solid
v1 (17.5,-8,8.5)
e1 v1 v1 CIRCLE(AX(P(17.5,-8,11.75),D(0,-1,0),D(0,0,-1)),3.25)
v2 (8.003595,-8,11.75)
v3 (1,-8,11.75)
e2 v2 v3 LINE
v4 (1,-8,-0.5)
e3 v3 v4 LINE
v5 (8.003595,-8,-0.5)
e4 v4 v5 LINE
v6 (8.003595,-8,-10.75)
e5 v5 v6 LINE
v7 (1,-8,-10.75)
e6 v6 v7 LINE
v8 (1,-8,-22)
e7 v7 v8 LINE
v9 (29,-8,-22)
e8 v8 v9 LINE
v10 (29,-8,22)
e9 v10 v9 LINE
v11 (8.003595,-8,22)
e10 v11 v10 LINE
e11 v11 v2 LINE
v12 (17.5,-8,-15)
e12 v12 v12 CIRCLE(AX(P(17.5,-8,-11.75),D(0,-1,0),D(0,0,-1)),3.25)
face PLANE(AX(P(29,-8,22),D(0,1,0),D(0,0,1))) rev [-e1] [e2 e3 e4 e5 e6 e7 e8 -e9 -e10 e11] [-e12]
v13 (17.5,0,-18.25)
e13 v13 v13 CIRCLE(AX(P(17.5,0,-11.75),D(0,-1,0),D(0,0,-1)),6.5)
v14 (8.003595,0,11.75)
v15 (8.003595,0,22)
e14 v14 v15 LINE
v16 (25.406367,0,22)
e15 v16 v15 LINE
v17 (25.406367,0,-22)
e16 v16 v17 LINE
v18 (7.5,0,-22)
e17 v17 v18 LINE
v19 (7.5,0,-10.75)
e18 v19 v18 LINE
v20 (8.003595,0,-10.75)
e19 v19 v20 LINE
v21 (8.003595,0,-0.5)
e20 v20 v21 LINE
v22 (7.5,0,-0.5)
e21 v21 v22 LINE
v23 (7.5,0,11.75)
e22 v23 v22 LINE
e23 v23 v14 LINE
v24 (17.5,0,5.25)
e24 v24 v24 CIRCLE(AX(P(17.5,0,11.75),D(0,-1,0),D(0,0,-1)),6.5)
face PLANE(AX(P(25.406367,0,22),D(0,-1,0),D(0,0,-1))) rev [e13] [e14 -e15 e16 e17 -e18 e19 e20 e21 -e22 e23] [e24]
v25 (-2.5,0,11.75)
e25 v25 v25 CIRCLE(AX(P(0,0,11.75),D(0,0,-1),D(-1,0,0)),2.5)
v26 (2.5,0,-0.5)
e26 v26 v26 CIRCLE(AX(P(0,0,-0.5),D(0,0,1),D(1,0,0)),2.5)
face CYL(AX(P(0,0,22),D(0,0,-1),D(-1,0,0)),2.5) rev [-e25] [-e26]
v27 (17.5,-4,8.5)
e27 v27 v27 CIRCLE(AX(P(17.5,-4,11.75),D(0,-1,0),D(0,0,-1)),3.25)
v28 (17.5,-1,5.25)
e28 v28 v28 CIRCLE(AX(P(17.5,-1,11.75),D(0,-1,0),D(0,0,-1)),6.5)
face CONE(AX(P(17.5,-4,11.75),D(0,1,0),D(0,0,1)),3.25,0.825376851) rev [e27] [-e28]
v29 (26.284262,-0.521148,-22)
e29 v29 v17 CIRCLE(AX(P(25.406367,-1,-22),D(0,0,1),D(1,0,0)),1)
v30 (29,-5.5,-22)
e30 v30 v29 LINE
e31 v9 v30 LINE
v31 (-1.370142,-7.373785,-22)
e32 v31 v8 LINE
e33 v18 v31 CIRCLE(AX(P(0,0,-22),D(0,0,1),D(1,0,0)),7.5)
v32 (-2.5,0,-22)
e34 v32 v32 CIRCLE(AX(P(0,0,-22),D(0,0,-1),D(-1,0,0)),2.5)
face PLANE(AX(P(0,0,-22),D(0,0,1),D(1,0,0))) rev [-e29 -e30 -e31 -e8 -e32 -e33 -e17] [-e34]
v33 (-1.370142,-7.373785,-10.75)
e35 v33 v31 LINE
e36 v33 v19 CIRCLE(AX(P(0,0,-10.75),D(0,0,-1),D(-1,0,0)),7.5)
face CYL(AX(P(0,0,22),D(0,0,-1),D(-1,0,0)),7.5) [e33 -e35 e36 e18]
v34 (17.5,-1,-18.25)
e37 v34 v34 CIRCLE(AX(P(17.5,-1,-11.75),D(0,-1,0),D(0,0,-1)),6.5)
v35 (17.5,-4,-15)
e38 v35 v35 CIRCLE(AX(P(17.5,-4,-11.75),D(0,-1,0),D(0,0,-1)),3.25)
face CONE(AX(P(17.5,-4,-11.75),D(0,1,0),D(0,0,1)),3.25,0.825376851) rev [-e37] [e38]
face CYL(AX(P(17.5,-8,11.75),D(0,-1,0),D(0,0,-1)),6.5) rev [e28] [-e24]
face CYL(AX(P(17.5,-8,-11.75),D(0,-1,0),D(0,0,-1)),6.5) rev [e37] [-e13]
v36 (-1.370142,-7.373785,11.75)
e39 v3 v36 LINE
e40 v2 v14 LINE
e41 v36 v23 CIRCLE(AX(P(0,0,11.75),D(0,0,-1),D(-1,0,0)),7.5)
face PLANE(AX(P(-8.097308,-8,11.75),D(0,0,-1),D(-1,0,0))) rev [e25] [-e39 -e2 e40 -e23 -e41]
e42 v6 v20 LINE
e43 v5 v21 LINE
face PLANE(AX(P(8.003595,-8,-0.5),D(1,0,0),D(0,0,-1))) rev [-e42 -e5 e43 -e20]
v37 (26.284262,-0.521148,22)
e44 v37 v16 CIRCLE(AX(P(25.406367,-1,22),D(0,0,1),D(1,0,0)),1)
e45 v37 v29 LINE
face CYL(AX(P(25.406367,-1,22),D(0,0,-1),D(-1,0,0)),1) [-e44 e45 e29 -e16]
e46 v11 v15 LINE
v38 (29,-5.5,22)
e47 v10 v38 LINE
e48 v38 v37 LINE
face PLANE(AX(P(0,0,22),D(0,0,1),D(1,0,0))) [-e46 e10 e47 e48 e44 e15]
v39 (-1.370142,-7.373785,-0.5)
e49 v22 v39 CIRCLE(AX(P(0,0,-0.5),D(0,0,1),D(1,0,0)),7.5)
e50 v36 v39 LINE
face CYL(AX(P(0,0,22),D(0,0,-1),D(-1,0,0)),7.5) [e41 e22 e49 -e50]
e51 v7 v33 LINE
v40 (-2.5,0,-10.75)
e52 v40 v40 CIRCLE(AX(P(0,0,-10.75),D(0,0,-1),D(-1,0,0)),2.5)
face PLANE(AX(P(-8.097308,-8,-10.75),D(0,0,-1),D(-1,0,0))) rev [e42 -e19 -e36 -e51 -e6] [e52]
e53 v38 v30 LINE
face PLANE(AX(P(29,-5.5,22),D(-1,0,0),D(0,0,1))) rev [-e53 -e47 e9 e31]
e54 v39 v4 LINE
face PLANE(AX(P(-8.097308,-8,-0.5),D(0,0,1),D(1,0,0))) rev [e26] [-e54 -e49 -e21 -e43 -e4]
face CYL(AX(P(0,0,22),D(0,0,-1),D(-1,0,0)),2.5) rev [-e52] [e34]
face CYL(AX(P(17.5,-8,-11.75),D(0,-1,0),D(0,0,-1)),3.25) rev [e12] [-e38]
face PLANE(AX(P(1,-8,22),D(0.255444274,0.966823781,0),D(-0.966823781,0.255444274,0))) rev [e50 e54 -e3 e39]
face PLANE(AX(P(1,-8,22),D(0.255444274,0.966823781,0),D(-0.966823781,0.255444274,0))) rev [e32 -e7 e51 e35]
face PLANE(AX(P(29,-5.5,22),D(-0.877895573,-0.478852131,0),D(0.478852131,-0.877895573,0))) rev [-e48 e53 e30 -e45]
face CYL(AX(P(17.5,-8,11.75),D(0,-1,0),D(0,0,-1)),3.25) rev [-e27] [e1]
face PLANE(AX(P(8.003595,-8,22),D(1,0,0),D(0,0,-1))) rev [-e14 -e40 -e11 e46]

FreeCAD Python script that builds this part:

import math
import FreeCAD as App
import Part
import Sketcher
from FreeCAD import Vector


def add_polygon(sketch, points):
    """Adds a closed chain of lines whose ends are joined by coincident constraints."""
    first, n = sketch.GeometryCount, len(points)
    for a, b in zip(points, points[1:] + points[:1]):
        sketch.addGeometry(Part.LineSegment(App.Vector(*a, 0), App.Vector(*b, 0)), False)
    for i in range(n):
        sketch.addConstraint(Sketcher.Constraint("Coincident", first + i, 2, first + (i + 1) % n, 1))

doc = App.newDocument("Part")
body = doc.addObject("PartDesign::Body", "Body")

# Sketch on XY plane
sketch1 = body.newObject("Sketcher::SketchObject", "Sketch")
sketch1.AttachmentSupport = (doc.getObject("XY_Plane"), [""])
sketch1.MapMode = "FlatFace"
sketch1.addGeometry(Part.LineSegment(Vector(29, -8, 0), Vector(29, -5.5, 0)), False)
sketch1.addGeometry(Part.LineSegment(Vector(29, -5.5, 0), Vector(26.3, -0.5, 0)), False)
sketch1.addGeometry(Part.ArcOfCircle(Part.Circle(Vector(25.4, -1, 0), Vector(0, 0, 1), 1), math.radians(29), math.radians(90)), False)
sketch1.addGeometry(Part.LineSegment(Vector(25.4, 0, 0), Vector(7.5, 0, 0)), False)
sketch1.addGeometry(Part.ArcOfCircle(Part.Circle(Vector(0, 0, 0), Vector(0, 0, 1), 7.5), math.radians(0), math.radians(259)), False)
sketch1.addGeometry(Part.LineSegment(Vector(-1.4, -7.4, 0), Vector(1, -8, 0)), False)
sketch1.addGeometry(Part.LineSegment(Vector(1, -8, 0), Vector(29, -8, 0)), False)
sketch1.addConstraint(Sketcher.Constraint("Coincident", 0, 2, 1, 1))
sketch1.addConstraint(Sketcher.Constraint("Tangent", 1, 2, 2, 1))
sketch1.addConstraint(Sketcher.Constraint("Tangent", 2, 2, 3, 1))
sketch1.addConstraint(Sketcher.Constraint("Coincident", 3, 2, 4, 1))
sketch1.addConstraint(Sketcher.Constraint("Coincident", 4, 2, 5, 1))
sketch1.addConstraint(Sketcher.Constraint("Coincident", 5, 2, 6, 1))
sketch1.addConstraint(Sketcher.Constraint("Coincident", 6, 2, 0, 1))
sketch1.addConstraint(Sketcher.Constraint("Vertical", 0))
sketch1.addConstraint(Sketcher.Constraint("Horizontal", 3))
sketch1.addConstraint(Sketcher.Constraint("Horizontal", 6))
sketch1.addConstraint(Sketcher.Constraint("Coincident", 4, 3, -1, 1))
sketch1.addConstraint(Sketcher.Constraint("PointOnObject", 2, 2, -1))
sketch1.addConstraint(Sketcher.Constraint("Radius", 2, 1.0))
sketch1.addConstraint(Sketcher.Constraint("Radius", 4, 7.5))
sketch1.addConstraint(Sketcher.Constraint("DistanceX", 6, 1, 6, 2, 28.0))
sketch1.addConstraint(Sketcher.Constraint("DistanceY", 0, 1, 0, 2, 2.5))
sketch1.addConstraint(Sketcher.Constraint("DistanceX", -1, 1, 0, 2, 29.0))
sketch1.addConstraint(Sketcher.Constraint("DistanceY", 5, 2, -1, 1, 8.0))
sketch1.addConstraint(Sketcher.Constraint("Distance", 1, 5.671349))
sketch1.addConstraint(Sketcher.Constraint("DistanceX", 4, 2, -1, 1, 1.370142))
pad1 = body.newObject("PartDesign::Pad", "Pad")
pad1.Profile = sketch1
pad1.Length = 44
pad1.Midplane = True

# Sketch on XY plane
sketch2 = body.newObject("Sketcher::SketchObject", "Sketch001")
sketch2.AttachmentSupport = (doc.getObject("XY_Plane"), [""])
sketch2.MapMode = "FlatFace"
sketch2.AttachmentOffset = App.Placement(Vector(0, 0, 11.75), App.Rotation())
add_polygon(sketch2, [(24, 0), (17.5, 0), (17.5, -8), (20.8, -8), (20.8, -4), (24, -1)])  # lines 0-5
sketch2.addGeometry(Part.LineSegment(Vector(17.5, -8, 0), Vector(17.5, 0, 0)), True)  # axis
sketch2.addConstraint(Sketcher.Constraint("Horizontal", 0))
sketch2.addConstraint(Sketcher.Constraint("Vertical", 1))
sketch2.addConstraint(Sketcher.Constraint("Horizontal", 2))
sketch2.addConstraint(Sketcher.Constraint("Vertical", 3))
sketch2.addConstraint(Sketcher.Constraint("Vertical", 5))
sketch2.addConstraint(Sketcher.Constraint("Vertical", 6))
sketch2.addConstraint(Sketcher.Constraint("Coincident", 6, 1, 1, 2))
sketch2.addConstraint(Sketcher.Constraint("PointOnObject", 0, 2, -1))
sketch2.addConstraint(Sketcher.Constraint("PointOnObject", 6, 2, -1))
sketch2.addConstraint(Sketcher.Constraint("DistanceY", 1, 2, 1, 1, 8.0))
sketch2.addConstraint(Sketcher.Constraint("DistanceY", 3, 1, 3, 2, 4.0))
sketch2.addConstraint(Sketcher.Constraint("DistanceY", 5, 1, 5, 2, 1.0))
sketch2.addConstraint(Sketcher.Constraint("DistanceX", 0, 2, 0, 1, 6.5))
sketch2.addConstraint(Sketcher.Constraint("DistanceX", -1, 1, 4, 2, 24.0))
sketch2.addConstraint(Sketcher.Constraint("DistanceX", 2, 1, 2, 2, 3.25))
groove = body.newObject("PartDesign::Groove", "Groove")
groove.Profile = sketch2
groove.ReferenceAxis = (sketch2, ["Axis0"])
groove.Angle = 360
doc.recompute()

linearpattern = body.newObject("PartDesign::LinearPattern", "LinearPattern")
linearpattern.Originals = [groove]
linearpattern.Direction = (doc.getObject("Z_Axis"), [""])
linearpattern.Mode = "offset"
linearpattern.Offset = 23.5
linearpattern.Occurrences = 2
linearpattern.Reversed = True
body.Tip = linearpattern

# Sketch on XZ plane
sketch3 = body.newObject("Sketcher::SketchObject", "Sketch002")
sketch3.AttachmentSupport = (doc.getObject("XZ_Plane"), [""])
sketch3.MapMode = "FlatFace"
add_polygon(sketch3, [(-8, 12), (-8, 22), (8, 22), (8, 12)])  # lines 0-3
add_polygon(sketch3, [(-8, -11), (-8, 0), (8, 0), (8, -11)])  # lines 4-7
sketch3.addConstraint(Sketcher.Constraint("Vertical", 0))
sketch3.addConstraint(Sketcher.Constraint("Horizontal", 1))
sketch3.addConstraint(Sketcher.Constraint("Vertical", 2))
sketch3.addConstraint(Sketcher.Constraint("Horizontal", 3))
sketch3.addConstraint(Sketcher.Constraint("Vertical", 4))
sketch3.addConstraint(Sketcher.Constraint("Horizontal", 5))
sketch3.addConstraint(Sketcher.Constraint("Vertical", 6))
sketch3.addConstraint(Sketcher.Constraint("Horizontal", 7))
sketch3.addConstraint(Sketcher.Constraint("Vertical", 3, 2, 4, 2))
sketch3.addConstraint(Sketcher.Constraint("Vertical", 2, 2, 5, 2))
sketch3.addConstraint(Sketcher.Constraint("Equal", 2, 4))
sketch3.addConstraint(Sketcher.Constraint("DistanceY", -1, 1, 0, 2, 22.0))
sketch3.addConstraint(Sketcher.Constraint("DistanceY", 0, 1, 0, 2, 10.25))
sketch3.addConstraint(Sketcher.Constraint("DistanceY", 4, 2, -1, 1, 0.5))
sketch3.addConstraint(Sketcher.Constraint("DistanceX", 1, 1, 1, 2, 16.100903))
sketch3.addConstraint(Sketcher.Constraint("DistanceX", 0, 2, -1, 1, 8.097308))
pocket1 = body.newObject("PartDesign::Pocket", "Pocket")
pocket1.Profile = sketch3
pocket1.Type = "ThroughAll"
pocket1.Midplane = True

# Sketch on XY plane
sketch4 = body.newObject("Sketcher::SketchObject", "Sketch003")
sketch4.AttachmentSupport = (doc.getObject("XY_Plane"), [""])
sketch4.MapMode = "FlatFace"
sketch4.AttachmentOffset = App.Placement(Vector(0, 0, -22), App.Rotation())
sketch4.addGeometry(Part.Circle(Vector(0, 0, 0), Vector(0, 0, 1), 2.5), False)
sketch4.addConstraint(Sketcher.Constraint("Coincident", 0, 3, -1, 1))
sketch4.addConstraint(Sketcher.Constraint("Diameter", 0, 5.0))
pocket2 = body.newObject("PartDesign::Pocket", "Pocket001")
pocket2.Profile = sketch4
pocket2.Type = "ThroughAll"
pocket2.Reversed = True

doc.recompute()
